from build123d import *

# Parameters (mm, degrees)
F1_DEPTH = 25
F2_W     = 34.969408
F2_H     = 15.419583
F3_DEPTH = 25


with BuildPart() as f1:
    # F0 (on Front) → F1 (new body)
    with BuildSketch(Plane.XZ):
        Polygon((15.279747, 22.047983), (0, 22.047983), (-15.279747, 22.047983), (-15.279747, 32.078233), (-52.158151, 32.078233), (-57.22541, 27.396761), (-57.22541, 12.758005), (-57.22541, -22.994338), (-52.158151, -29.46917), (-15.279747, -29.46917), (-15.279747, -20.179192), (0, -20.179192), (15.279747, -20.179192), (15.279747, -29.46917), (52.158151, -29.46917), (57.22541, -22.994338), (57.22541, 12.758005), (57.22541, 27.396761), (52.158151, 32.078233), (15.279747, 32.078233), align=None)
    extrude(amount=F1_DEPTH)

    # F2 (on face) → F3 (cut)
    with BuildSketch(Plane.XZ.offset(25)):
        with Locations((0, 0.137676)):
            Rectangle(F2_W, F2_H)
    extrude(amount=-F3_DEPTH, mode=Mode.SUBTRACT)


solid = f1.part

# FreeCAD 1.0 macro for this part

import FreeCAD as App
import Part
import Sketcher

doc = App.newDocument("Part")
body = doc.addObject("PartDesign::Body", "Body")

# Sketch on XZ plane
sketch1 = doc.addObject("Sketcher::SketchObject", "Sketch")
body.addObject(sketch1)
sketch1.AttachmentSupport = (doc.XZ_Plane, [""])
sketch1.MapMode = "FlatFace"
sketch1.addGeometry([
    Part.LineSegment(App.Vector(15, 22, 0), App.Vector(-15, 22, 0)),  # 0
    Part.LineSegment(App.Vector(-15, 22, 0), App.Vector(-15, 32, 0)),  # 1
    Part.LineSegment(App.Vector(-15, 32, 0), App.Vector(-52, 32, 0)),  # 2
    Part.LineSegment(App.Vector(-52, 32, 0), App.Vector(-57, 27, 0)),  # 3
    Part.LineSegment(App.Vector(-57, 27, 0), App.Vector(-57, -23, 0)),  # 4
    Part.LineSegment(App.Vector(-57, -23, 0), App.Vector(-52, -29, 0)),  # 5
    Part.LineSegment(App.Vector(-52, -29, 0), App.Vector(-15, -29, 0)),  # 6
    Part.LineSegment(App.Vector(-15, -29, 0), App.Vector(-15, -20, 0)),  # 7
    Part.LineSegment(App.Vector(-15, -20, 0), App.Vector(15, -20, 0)),  # 8
    Part.LineSegment(App.Vector(15, -20, 0), App.Vector(15, -29, 0)),  # 9
    Part.LineSegment(App.Vector(15, -29, 0), App.Vector(52, -29, 0)),  # 10
    Part.LineSegment(App.Vector(52, -29, 0), App.Vector(57, -23, 0)),  # 11
    Part.LineSegment(App.Vector(57, -23, 0), App.Vector(57, 27, 0)),  # 12
    Part.LineSegment(App.Vector(57, 27, 0), App.Vector(52, 32, 0)),  # 13
    Part.LineSegment(App.Vector(52, 32, 0), App.Vector(15, 32, 0)),  # 14
    Part.LineSegment(App.Vector(15, 32, 0), App.Vector(15, 22, 0)),  # 15
], False)
sketch1.addConstraint([
    Sketcher.Constraint("Coincident", 0, 2, 1, 1),
    Sketcher.Constraint("Coincident", 1, 2, 2, 1),
    Sketcher.Constraint("Coincident", 2, 2, 3, 1),
    Sketcher.Constraint("Coincident", 3, 2, 4, 1),
    Sketcher.Constraint("Coincident", 4, 2, 5, 1),
    Sketcher.Constraint("Coincident", 5, 2, 6, 1),
    Sketcher.Constraint("Coincident", 6, 2, 7, 1),
    Sketcher.Constraint("Coincident", 7, 2, 8, 1),
    Sketcher.Constraint("Coincident", 8, 2, 9, 1),
    Sketcher.Constraint("Coincident", 9, 2, 10, 1),
    Sketcher.Constraint("Coincident", 10, 2, 11, 1),
    Sketcher.Constraint("Coincident", 11, 2, 12, 1),
    Sketcher.Constraint("Coincident", 12, 2, 13, 1),
    Sketcher.Constraint("Coincident", 13, 2, 14, 1),
    Sketcher.Constraint("Coincident", 14, 2, 15, 1),
    Sketcher.Constraint("Coincident", 15, 2, 0, 1),
    Sketcher.Constraint("Horizontal", 0),
    Sketcher.Constraint("Vertical", 1),
    Sketcher.Constraint("Horizontal", 2),
    Sketcher.Constraint("Vertical", 4),
    Sketcher.Constraint("Horizontal", 6),
    Sketcher.Constraint("Vertical", 7),
    Sketcher.Constraint("Horizontal", 8),
    Sketcher.Constraint("Vertical", 9),
    Sketcher.Constraint("Horizontal", 10),
    Sketcher.Constraint("Vertical", 12),
    Sketcher.Constraint("Horizontal", 14),
    Sketcher.Constraint("Vertical", 15),
    Sketcher.Constraint("Symmetric", 6, 2, 9, 2, -2),
    Sketcher.Constraint("Symmetric", 4, 2, 11, 2, -2),
    Sketcher.Constraint("Symmetric", 2, 2, 13, 2, -2),
    Sketcher.Constraint("Horizontal", 3, 2, 12, 2),
    Sketcher.Constraint("Vertical", 2, 2, 5, 2),
    Sketcher.Constraint("Vertical", 1, 2, 6, 2),
    Sketcher.Constraint("Vertical", 10, 2, 13, 2),
    Sketcher.Constraint("Vertical", 9, 2, 14, 2),
    Sketcher.Constraint("DistanceY", 4, 2, 4, 1, 50.391099),
    Sketcher.Constraint("DistanceY", 1, 1, 1, 2, 10.03025),
    Sketcher.Constraint("Distance", 3, 6.898789),
    Sketcher.Constraint("DistanceX", 0, 2, 0, 1, 30.559494),
    Sketcher.Constraint("DistanceX", 2, 2, 2, 1, 36.878404),
    Sketcher.Constraint("DistanceY", 7, 1, 7, 2, 9.289978),
    Sketcher.Constraint("DistanceX", 3, 2, -1, 1, 57.22541),
    Sketcher.Constraint("DistanceY", -1, 1, 3, 2, 27.396761),
    Sketcher.Constraint("DistanceY", 5, 2, -1, 1, 29.46917),
])
pad1 = doc.addObject("PartDesign::Pad", "Pad")
body.addObject(pad1)
pad1.Profile = sketch1
pad1.Length = 25

# Sketch on XZ plane
sketch2 = doc.addObject("Sketcher::SketchObject", "Sketch001")
body.addObject(sketch2)
sketch2.AttachmentSupport = (doc.XZ_Plane, [""])
sketch2.MapMode = "FlatFace"
sketch2.AttachmentOffset = App.Placement(App.Vector(0, 0, 25), App.Rotation())
sketch2.addGeometry([
    Part.LineSegment(App.Vector(-17, 8, 0), App.Vector(-17, -8, 0)),
    Part.LineSegment(App.Vector(-17, -8, 0), App.Vector(17, -8, 0)),
    Part.LineSegment(App.Vector(17, -8, 0), App.Vector(17, 8, 0)),
    Part.LineSegment(App.Vector(17, 8, 0), App.Vector(-17, 8, 0)),
], False)
sketch2.addConstraint([
    Sketcher.Constraint("Coincident", 0, 2, 1, 1),
    Sketcher.Constraint("Coincident", 1, 2, 2, 1),
    Sketcher.Constraint("Coincident", 2, 2, 3, 1),
    Sketcher.Constraint("Coincident", 3, 2, 0, 1),
    Sketcher.Constraint("Vertical", 0),
    Sketcher.Constraint("Horizontal", 1),
    Sketcher.Constraint("Vertical", 2),
    Sketcher.Constraint("Horizontal", 3),
    Sketcher.Constraint("DistanceX", 1, 1, 1, 2, 34.969408),
    Sketcher.Constraint("DistanceY", 0, 2, 0, 1, 15.419583),
    Sketcher.Constraint("DistanceX", 0, 2, -1, 1, 17.484704),
    Sketcher.Constraint("DistanceY", 0, 2, -1, 1, 7.572115),
])
pocket1 = doc.addObject("PartDesign::Pocket", "Pocket")
body.addObject(pocket1)
pocket1.Profile = sketch2
pocket1.Length = 25

doc.recompute()
